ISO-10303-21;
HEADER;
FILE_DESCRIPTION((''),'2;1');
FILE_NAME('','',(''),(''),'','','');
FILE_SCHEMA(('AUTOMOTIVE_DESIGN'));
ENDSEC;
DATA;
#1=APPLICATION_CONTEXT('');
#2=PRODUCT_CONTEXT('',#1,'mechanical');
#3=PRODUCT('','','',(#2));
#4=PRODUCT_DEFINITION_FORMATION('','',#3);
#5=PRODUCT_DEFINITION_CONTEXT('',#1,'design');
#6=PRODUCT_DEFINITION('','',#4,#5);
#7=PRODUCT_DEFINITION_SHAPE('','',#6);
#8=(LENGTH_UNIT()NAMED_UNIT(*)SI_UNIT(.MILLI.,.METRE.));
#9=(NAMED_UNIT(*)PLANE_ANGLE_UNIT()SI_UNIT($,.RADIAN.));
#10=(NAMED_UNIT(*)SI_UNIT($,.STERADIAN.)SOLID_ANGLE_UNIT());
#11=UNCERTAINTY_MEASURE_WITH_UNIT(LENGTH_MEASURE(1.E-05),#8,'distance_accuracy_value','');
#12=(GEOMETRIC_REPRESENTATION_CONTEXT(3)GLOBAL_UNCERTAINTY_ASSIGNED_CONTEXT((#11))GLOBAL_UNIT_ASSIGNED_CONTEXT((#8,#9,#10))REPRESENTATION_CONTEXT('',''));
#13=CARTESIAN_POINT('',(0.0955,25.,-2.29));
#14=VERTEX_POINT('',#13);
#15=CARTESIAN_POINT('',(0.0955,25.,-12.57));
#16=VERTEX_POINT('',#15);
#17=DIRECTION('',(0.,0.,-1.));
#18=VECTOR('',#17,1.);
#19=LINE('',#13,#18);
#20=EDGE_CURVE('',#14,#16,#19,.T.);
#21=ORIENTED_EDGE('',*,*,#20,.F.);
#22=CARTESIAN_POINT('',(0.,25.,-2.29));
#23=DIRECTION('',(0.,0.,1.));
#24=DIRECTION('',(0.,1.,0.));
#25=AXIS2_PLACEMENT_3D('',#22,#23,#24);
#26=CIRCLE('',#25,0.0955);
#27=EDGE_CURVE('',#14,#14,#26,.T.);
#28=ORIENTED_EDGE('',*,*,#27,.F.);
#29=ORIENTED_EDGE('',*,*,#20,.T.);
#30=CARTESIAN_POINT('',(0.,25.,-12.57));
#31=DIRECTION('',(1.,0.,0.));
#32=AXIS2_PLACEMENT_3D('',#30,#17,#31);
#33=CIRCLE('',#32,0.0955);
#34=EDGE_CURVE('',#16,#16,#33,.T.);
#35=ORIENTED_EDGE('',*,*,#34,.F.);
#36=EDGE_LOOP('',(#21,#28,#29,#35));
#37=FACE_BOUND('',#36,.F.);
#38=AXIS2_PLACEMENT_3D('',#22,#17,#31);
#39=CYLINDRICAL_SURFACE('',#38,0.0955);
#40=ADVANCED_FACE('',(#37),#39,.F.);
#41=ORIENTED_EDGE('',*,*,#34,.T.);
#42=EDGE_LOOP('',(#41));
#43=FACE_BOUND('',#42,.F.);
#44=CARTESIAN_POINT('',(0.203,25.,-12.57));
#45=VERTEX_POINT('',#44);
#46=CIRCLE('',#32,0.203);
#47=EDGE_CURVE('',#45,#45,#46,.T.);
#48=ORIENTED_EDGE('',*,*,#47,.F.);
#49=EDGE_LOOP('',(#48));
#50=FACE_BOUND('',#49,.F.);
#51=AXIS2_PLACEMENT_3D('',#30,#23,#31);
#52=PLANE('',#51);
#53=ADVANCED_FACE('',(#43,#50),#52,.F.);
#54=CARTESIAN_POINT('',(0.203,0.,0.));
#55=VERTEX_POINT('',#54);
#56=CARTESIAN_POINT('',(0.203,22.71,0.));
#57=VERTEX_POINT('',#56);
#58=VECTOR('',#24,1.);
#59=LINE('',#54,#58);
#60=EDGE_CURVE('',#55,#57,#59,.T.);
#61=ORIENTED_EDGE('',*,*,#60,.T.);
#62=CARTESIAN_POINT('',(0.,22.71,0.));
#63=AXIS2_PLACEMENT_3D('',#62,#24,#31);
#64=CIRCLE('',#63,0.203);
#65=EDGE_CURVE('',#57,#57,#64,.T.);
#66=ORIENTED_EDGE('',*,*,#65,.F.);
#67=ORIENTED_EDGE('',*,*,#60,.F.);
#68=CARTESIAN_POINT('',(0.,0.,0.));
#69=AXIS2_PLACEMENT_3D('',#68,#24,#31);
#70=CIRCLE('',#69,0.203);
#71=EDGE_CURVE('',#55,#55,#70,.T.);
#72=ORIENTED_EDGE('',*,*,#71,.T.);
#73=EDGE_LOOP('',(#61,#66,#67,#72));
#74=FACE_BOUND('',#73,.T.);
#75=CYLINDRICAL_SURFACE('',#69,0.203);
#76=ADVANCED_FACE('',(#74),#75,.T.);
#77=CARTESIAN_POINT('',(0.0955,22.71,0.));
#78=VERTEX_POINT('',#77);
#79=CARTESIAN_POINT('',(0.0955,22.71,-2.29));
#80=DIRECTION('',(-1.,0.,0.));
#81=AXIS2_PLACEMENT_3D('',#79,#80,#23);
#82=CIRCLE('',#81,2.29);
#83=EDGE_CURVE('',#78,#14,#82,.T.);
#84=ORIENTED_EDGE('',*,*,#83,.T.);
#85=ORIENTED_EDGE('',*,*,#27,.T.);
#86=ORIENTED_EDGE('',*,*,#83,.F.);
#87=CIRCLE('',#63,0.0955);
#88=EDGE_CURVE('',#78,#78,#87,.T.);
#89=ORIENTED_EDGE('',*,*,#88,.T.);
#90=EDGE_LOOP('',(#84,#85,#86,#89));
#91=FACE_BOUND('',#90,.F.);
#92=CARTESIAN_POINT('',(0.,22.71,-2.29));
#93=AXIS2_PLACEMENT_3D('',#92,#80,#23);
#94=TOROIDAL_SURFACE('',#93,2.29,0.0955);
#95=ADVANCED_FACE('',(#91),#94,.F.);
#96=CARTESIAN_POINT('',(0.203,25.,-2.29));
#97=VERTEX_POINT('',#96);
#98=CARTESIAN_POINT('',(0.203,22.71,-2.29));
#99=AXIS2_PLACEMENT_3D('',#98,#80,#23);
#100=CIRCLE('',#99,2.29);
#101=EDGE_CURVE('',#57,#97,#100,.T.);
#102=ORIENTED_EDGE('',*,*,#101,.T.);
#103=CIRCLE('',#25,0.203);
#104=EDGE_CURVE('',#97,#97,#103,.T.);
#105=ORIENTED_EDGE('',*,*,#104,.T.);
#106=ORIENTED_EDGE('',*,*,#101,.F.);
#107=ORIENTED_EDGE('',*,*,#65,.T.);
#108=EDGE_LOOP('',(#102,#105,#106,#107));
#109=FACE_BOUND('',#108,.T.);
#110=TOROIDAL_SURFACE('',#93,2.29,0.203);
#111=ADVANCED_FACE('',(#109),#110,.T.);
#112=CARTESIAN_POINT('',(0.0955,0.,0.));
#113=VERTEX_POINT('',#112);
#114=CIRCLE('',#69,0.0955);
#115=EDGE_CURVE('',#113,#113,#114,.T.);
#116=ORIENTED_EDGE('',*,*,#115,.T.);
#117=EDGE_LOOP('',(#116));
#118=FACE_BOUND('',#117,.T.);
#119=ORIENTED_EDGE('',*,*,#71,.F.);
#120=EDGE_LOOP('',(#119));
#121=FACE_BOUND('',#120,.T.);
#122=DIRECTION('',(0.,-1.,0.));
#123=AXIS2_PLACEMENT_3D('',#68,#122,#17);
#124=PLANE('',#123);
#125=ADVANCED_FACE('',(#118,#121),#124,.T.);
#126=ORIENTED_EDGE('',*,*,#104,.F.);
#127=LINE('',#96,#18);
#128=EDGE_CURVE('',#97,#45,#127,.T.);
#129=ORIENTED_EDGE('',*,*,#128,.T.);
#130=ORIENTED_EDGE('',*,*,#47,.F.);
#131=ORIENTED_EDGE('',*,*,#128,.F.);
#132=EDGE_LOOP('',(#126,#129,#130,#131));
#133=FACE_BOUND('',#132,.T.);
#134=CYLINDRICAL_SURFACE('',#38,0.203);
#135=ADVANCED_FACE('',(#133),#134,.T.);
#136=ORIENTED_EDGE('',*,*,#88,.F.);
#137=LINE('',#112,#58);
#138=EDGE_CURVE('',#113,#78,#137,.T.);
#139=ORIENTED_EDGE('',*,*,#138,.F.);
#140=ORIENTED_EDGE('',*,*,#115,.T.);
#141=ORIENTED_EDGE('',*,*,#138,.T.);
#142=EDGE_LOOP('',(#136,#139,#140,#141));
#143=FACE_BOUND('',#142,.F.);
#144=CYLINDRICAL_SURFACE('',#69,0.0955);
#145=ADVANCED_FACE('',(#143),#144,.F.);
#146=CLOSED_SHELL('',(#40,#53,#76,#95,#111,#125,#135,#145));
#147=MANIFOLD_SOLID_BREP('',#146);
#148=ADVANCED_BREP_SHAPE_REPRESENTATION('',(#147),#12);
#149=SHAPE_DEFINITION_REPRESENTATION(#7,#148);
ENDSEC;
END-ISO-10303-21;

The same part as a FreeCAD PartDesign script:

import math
import FreeCAD as App
import Part
import Sketcher
from FreeCAD import Vector
Q = App.Units.Quantity

doc = App.newDocument("Part")
body = doc.addObject("PartDesign::Body", "Body")

sketch1 = body.newObject("Sketcher::SketchObject", "Sketch")
sketch1.AttachmentSupport = (doc.getObject("XZ_Plane"), [""])
sketch1.MapMode = "FlatFace"
sketch1.addGeometry([
    Part.Circle(Vector(0, 0, 0), Vector(0, 0, 1), 0.2),
    Part.Circle(Vector(0, 0, 0), Vector(0, 0, 1), 0.1),
], False)
sketch1.addConstraint([
    Sketcher.Constraint("Coincident", 0, 3, -1, 1),
    Sketcher.Constraint("Coincident", 1, 3, -1, 1),
    Sketcher.Constraint("Diameter", 0, Q("0.406 mm")),
    Sketcher.Constraint("Diameter", 1, Q("0.191 mm")),
])

sketch2 = body.newObject("Sketcher::SketchObject", "Sketch001")
sketch2.AttachmentSupport = (doc.getObject("YZ_Plane"), [""])
sketch2.MapMode = "FlatFace"
sketch2.addGeometry([
    Part.LineSegment(Vector(0, 0, 0), Vector(22.7, 0, 0)),
    Part.ArcOfCircle(Part.Circle(Vector(22.7, -2.3, 0), Vector(0, 0, 1), 2.3), math.radians(0), math.radians(90)),
    Part.LineSegment(Vector(25, -2.3, 0), Vector(25, -12.6, 0)),
], False)
sketch2.addConstraint([
    Sketcher.Constraint("Tangent", 0, 2, 1, 2),
    Sketcher.Constraint("Tangent", 1, 1, 2, 1),
    Sketcher.Constraint("Horizontal", 0),
    Sketcher.Constraint("Vertical", 2),
    Sketcher.Constraint("Coincident", 0, 1, -1, 1),
    Sketcher.Constraint("Radius", 1, Q("2.29 mm")),
    Sketcher.Constraint("DistanceX", -1, 1, 1, 1, Q("25 mm")),
    Sketcher.Constraint("DistanceY", 2, 2, 2, 1, Q("10.28 mm")),
])
doc.recompute()

additivepipe = body.newObject("PartDesign::AdditivePipe", "AdditivePipe")
additivepipe.Profile = sketch1
additivepipe.Spine = (sketch2, ["Edge1", "Edge2", "Edge3"])

doc.recompute()
